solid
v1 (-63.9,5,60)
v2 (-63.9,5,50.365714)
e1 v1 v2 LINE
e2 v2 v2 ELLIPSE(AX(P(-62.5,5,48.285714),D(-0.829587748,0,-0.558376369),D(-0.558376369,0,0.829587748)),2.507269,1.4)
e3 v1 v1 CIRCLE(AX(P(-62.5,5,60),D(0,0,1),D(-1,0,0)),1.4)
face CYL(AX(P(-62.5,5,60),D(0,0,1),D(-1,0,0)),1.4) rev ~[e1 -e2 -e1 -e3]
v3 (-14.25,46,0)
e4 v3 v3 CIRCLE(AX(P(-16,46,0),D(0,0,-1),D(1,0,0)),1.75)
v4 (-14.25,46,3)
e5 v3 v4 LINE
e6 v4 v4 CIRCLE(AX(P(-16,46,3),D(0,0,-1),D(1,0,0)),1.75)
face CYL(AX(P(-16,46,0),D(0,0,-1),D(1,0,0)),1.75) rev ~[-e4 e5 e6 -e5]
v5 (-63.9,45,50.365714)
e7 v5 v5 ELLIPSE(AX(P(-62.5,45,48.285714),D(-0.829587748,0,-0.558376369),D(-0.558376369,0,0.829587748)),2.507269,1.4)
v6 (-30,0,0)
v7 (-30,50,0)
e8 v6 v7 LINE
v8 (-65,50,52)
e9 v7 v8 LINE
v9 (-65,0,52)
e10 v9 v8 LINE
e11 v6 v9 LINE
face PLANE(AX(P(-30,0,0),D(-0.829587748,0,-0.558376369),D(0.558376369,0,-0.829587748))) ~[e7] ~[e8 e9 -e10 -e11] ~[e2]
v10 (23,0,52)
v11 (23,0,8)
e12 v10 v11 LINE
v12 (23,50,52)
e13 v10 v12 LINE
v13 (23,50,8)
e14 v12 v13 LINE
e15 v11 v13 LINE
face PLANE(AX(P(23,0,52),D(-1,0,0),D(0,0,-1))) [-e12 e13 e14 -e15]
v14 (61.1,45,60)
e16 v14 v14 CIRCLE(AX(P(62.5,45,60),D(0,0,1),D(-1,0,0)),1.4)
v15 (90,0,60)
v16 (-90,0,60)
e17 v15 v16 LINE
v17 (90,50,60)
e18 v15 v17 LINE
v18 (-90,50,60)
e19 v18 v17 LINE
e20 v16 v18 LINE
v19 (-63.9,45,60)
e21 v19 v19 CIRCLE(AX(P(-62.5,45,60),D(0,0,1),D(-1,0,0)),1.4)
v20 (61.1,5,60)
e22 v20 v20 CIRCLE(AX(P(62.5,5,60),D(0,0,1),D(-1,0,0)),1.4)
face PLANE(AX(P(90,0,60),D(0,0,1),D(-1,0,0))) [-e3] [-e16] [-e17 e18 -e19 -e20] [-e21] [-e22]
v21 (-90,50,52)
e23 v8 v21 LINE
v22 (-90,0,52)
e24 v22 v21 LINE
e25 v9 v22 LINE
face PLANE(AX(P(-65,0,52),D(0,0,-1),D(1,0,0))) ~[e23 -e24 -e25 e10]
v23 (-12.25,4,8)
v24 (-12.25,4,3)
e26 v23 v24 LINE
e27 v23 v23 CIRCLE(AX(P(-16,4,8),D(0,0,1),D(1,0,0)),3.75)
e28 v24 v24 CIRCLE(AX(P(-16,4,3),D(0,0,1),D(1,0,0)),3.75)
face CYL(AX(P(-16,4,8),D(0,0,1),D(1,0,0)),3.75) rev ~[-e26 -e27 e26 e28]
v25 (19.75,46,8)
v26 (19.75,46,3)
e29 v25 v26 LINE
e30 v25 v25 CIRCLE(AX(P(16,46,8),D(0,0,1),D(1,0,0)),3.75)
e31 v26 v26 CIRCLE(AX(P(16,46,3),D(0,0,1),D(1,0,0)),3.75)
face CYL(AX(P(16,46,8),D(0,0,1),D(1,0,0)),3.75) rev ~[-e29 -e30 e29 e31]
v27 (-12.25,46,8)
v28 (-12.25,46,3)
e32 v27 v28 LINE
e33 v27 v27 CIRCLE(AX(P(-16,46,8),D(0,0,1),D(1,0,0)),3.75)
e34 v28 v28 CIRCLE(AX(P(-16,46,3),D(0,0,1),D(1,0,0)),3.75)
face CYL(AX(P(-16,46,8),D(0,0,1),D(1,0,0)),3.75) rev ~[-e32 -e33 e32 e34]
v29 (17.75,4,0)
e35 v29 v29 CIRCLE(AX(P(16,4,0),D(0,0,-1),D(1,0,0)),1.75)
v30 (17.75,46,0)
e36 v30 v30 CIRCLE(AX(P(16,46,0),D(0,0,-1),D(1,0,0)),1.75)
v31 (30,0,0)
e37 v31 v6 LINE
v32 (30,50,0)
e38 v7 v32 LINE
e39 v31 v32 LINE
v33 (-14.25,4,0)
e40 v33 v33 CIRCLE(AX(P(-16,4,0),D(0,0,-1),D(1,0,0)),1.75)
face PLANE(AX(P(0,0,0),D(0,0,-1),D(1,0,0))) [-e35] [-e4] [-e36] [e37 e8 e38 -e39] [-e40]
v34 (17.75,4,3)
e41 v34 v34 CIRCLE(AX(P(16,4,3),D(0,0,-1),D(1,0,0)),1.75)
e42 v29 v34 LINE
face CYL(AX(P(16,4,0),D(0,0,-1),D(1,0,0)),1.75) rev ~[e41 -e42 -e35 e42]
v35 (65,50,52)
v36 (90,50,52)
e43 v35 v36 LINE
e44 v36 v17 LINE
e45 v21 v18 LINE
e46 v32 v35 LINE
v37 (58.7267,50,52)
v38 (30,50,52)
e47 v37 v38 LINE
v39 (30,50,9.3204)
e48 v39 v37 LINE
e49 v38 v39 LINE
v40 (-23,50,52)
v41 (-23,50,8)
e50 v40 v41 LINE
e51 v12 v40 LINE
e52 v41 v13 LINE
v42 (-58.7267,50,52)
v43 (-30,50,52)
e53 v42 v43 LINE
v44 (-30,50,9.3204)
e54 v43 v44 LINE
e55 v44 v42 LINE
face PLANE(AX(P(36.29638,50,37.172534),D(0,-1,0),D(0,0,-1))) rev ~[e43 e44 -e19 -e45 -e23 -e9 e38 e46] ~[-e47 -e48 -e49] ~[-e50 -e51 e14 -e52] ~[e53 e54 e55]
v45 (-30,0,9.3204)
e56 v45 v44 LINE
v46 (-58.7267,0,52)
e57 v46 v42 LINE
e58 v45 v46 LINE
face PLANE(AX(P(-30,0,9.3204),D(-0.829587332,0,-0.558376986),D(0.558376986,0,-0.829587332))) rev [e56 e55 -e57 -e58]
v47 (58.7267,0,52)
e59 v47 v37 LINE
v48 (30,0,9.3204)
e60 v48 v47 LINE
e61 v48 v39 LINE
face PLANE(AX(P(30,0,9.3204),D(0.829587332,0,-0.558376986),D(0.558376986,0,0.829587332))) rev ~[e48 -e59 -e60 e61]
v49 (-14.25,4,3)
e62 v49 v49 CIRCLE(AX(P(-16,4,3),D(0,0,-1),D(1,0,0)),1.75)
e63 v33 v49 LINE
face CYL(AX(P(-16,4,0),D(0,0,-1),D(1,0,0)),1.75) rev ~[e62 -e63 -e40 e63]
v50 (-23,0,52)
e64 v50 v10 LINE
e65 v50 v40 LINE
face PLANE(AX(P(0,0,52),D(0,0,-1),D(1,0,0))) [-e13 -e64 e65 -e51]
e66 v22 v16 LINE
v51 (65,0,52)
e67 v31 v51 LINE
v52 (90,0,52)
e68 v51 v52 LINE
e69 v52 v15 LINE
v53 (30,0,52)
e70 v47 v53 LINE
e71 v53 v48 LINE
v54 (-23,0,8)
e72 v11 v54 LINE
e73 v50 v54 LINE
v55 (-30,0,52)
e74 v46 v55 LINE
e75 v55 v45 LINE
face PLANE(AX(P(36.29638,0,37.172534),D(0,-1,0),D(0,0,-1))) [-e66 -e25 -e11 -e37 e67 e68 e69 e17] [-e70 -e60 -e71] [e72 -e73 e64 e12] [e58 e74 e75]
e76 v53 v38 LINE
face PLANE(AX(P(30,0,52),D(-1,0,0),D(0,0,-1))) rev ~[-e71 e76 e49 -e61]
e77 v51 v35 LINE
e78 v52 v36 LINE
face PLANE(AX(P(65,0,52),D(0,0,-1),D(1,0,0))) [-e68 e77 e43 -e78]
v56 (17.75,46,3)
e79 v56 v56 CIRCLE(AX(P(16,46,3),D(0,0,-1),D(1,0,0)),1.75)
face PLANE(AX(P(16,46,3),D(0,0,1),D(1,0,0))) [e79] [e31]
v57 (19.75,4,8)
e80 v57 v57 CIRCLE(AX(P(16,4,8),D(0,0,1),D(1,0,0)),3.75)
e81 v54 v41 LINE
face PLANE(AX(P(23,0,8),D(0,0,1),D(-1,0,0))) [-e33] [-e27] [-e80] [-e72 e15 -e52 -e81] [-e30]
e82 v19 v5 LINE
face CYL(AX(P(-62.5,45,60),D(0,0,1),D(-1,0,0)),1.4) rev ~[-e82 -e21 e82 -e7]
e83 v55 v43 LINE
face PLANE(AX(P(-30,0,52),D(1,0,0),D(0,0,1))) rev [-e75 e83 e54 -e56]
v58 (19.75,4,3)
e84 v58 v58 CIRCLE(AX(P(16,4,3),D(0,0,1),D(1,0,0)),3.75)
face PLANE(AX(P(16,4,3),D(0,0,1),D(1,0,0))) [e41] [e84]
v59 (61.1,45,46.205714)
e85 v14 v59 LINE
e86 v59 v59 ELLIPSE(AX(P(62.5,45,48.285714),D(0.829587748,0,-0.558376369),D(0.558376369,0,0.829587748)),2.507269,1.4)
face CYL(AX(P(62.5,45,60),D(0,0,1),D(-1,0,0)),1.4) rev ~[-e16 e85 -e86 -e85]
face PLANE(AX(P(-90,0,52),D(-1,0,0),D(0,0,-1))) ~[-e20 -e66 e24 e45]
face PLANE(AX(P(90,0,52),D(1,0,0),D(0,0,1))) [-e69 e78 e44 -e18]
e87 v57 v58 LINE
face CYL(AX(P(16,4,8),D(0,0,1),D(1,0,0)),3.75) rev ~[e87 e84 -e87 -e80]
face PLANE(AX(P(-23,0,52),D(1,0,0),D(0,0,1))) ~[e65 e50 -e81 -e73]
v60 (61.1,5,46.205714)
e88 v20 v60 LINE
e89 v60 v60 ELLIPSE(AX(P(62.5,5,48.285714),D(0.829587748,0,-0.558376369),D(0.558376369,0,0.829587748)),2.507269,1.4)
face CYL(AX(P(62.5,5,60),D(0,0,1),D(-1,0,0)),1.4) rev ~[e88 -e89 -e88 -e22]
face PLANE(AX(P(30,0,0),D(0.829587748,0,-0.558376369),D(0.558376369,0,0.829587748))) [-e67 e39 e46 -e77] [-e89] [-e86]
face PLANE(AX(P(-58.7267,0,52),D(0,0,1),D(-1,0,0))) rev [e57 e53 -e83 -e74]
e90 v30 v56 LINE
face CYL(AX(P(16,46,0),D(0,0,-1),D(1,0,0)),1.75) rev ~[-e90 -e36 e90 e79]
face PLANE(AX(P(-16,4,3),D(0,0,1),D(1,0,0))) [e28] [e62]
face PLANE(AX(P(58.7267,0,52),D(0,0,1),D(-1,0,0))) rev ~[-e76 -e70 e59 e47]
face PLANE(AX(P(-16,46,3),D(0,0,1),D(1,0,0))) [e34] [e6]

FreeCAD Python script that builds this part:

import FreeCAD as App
import Part
import Sketcher
from FreeCAD import Vector
Q = App.Units.Quantity

doc = App.newDocument("Part")
body = doc.addObject("PartDesign::Body", "Body")

# Sketch on XZ plane
sketch1 = body.newObject("Sketcher::SketchObject", "Sketch")
sketch1.AttachmentSupport = (doc.getObject("XZ_Plane"), [""])
sketch1.MapMode = "FlatFace"
sketch1.addGeometry(Part.LineSegment(Vector(0, 0, 0), Vector(30, 0, 0)), False)
sketch1.addGeometry(Part.LineSegment(Vector(30, 0, 0), Vector(65, 52, 0)), False)
sketch1.addGeometry(Part.LineSegment(Vector(65, 52, 0), Vector(90, 52, 0)), False)
sketch1.addGeometry(Part.LineSegment(Vector(90, 52, 0), Vector(90, 60, 0)), False)
sketch1.addGeometry(Part.LineSegment(Vector(90, 60, 0), Vector(0, 60, 0)), False)
sketch1.addGeometry(Part.LineSegment(Vector(0, 60, 0), Vector(0, 52, 0)), False)
sketch1.addGeometry(Part.LineSegment(Vector(0, 52, 0), Vector(23, 52, 0)), False)
sketch1.addGeometry(Part.LineSegment(Vector(23, 52, 0), Vector(23, 8, 0)), False)
sketch1.addGeometry(Part.LineSegment(Vector(23, 8, 0), Vector(0, 8, 0)), False)
sketch1.addGeometry(Part.LineSegment(Vector(0, 8, 0), Vector(0, 0, 0)), False)
sketch1.addConstraint(Sketcher.Constraint("Coincident", 0, 2, 1, 1))
sketch1.addConstraint(Sketcher.Constraint("Coincident", 1, 2, 2, 1))
sketch1.addConstraint(Sketcher.Constraint("Coincident", 2, 2, 3, 1))
sketch1.addConstraint(Sketcher.Constraint("Coincident", 3, 2, 4, 1))
sketch1.addConstraint(Sketcher.Constraint("Coincident", 4, 2, 5, 1))
sketch1.addConstraint(Sketcher.Constraint("Coincident", 5, 2, 6, 1))
sketch1.addConstraint(Sketcher.Constraint("Coincident", 6, 2, 7, 1))
sketch1.addConstraint(Sketcher.Constraint("Coincident", 7, 2, 8, 1))
sketch1.addConstraint(Sketcher.Constraint("Coincident", 8, 2, 9, 1))
sketch1.addConstraint(Sketcher.Constraint("Coincident", 9, 2, 0, 1))
sketch1.addConstraint(Sketcher.Constraint("Horizontal", 0))
sketch1.addConstraint(Sketcher.Constraint("Horizontal", 2))
sketch1.addConstraint(Sketcher.Constraint("Vertical", 3))
sketch1.addConstraint(Sketcher.Constraint("Horizontal", 4))
sketch1.addConstraint(Sketcher.Constraint("Vertical", 5))
sketch1.addConstraint(Sketcher.Constraint("Horizontal", 6))
sketch1.addConstraint(Sketcher.Constraint("Vertical", 7))
sketch1.addConstraint(Sketcher.Constraint("Horizontal", 8))
sketch1.addConstraint(Sketcher.Constraint("Vertical", 9))
sketch1.addConstraint(Sketcher.Constraint("Coincident", 9, 2, -1, 1))
sketch1.addConstraint(Sketcher.Constraint("PointOnObject", 4, 2, -2))
sketch1.addConstraint(Sketcher.Constraint("Horizontal", 2, 2, 5, 2))
sketch1.addConstraint(Sketcher.Constraint("Equal", 5, 9))
sketch1.addConstraint(Sketcher.Constraint("DistanceX", 6, 1, 6, 2, Q("23 mm")))
sketch1.addConstraint(Sketcher.Constraint("DistanceX", 0, 1, 0, 2, Q("30 mm")))
sketch1.addConstraint(Sketcher.Constraint("DistanceX", 2, 1, 2, 2, Q("25 mm")))
sketch1.addConstraint(Sketcher.Constraint("DistanceX", 4, 2, 4, 1, Q("90 mm")))
sketch1.addConstraint(Sketcher.Constraint("DistanceY", 3, 1, 3, 2, Q("8 mm")))
sketch1.addConstraint(Sketcher.Constraint("DistanceY", 7, 2, 7, 1, Q("44 mm")))
pad1 = body.newObject("PartDesign::Pad", "Pad")
pad1.Profile = sketch1
pad1.Length = 50
pad1.Reversed = True
doc.recompute()

mirrored = body.newObject("PartDesign::Mirrored", "Mirrored")
mirrored.Originals = [pad1]
mirrored.MirrorPlane = (doc.getObject("YZ_Plane"), [""])
body.Tip = mirrored

# Sketch on XZ plane
sketch2 = body.newObject("Sketcher::SketchObject", "Sketch001")
sketch2.AttachmentSupport = (doc.getObject("XZ_Plane"), [""])
sketch2.MapMode = "FlatFace"
sketch2.addGeometry(Part.LineSegment(Vector(30, 52, 0), Vector(30, 9, 0)), False)
sketch2.addGeometry(Part.LineSegment(Vector(30, 9, 0), Vector(59, 52, 0)), False)
sketch2.addGeometry(Part.LineSegment(Vector(59, 52, 0), Vector(30, 52, 0)), False)
sketch2.addConstraint(Sketcher.Constraint("Coincident", 0, 2, 1, 1))
sketch2.addConstraint(Sketcher.Constraint("Coincident", 1, 2, 2, 1))
sketch2.addConstraint(Sketcher.Constraint("Coincident", 2, 2, 0, 1))
sketch2.addConstraint(Sketcher.Constraint("Vertical", 0))
sketch2.addConstraint(Sketcher.Constraint("Horizontal", 2))
sketch2.addConstraint(Sketcher.Constraint("DistanceX", -1, 1, 0, 2, Q("30 mm")))
sketch2.addConstraint(Sketcher.Constraint("DistanceY", -1, 1, 1, 2, Q("52 mm")))
sketch2.addConstraint(Sketcher.Constraint("DistanceX", 2, 2, 2, 1, Q("28.7267 mm")))
sketch2.addConstraint(Sketcher.Constraint("DistanceY", 0, 2, 0, 1, Q("42.6796 mm")))
pocket1 = body.newObject("PartDesign::Pocket", "Pocket")
pocket1.Profile = sketch2
pocket1.Type = "ThroughAll"

# Sketch on XY plane
sketch3 = body.newObject("Sketcher::SketchObject", "Sketch002")
sketch3.AttachmentSupport = (doc.getObject("XY_Plane"), [""])
sketch3.MapMode = "FlatFace"
sketch3.addGeometry(Part.Circle(Vector(-16, 4, 0), Vector(0, 0, 1), 1.8), False)
sketch3.addGeometry(Part.Circle(Vector(16, 4, 0), Vector(0, 0, 1), 1.8), False)
sketch3.addGeometry(Part.Circle(Vector(16, 46, 0), Vector(0, 0, 1), 1.8), False)
sketch3.addGeometry(Part.Circle(Vector(-16, 46, 0), Vector(0, 0, 1), 1.8), False)
sketch3.addConstraint(Sketcher.Constraint("Equal", 0, 1))
sketch3.addConstraint(Sketcher.Constraint("Equal", 1, 2))
sketch3.addConstraint(Sketcher.Constraint("Equal", 2, 3))
sketch3.addConstraint(Sketcher.Constraint("Symmetric", 0, 3, 1, 3, -2))
sketch3.addConstraint(Sketcher.Constraint("Symmetric", 2, 3, 3, 3, -2))
sketch3.addConstraint(Sketcher.Constraint("Vertical", 1, 3, 2, 3))
sketch3.addConstraint(Sketcher.Constraint("Diameter", 0, Q("3.5 mm")))
sketch3.addConstraint(Sketcher.Constraint("DistanceX", 0, 3, -1, 1, Q("16 mm")))
sketch3.addConstraint(Sketcher.Constraint("DistanceY", -1, 1, 0, 3, Q("4 mm")))
sketch3.addConstraint(Sketcher.Constraint("DistanceY", -1, 1, 2, 3, Q("46 mm")))
pocket2 = body.newObject("PartDesign::Pocket", "Pocket001")
pocket2.Profile = sketch3
pocket2.Type = "UpToFirst"
pocket2.Reversed = True

# Sketch on XY plane
sketch4 = body.newObject("Sketcher::SketchObject", "Sketch003")
sketch4.AttachmentSupport = (doc.getObject("XY_Plane"), [""])
sketch4.MapMode = "FlatFace"
sketch4.AttachmentOffset = App.Placement(Vector(0, 0, 8), App.Rotation())
sketch4.addGeometry(Part.Circle(Vector(-16, 4, 0), Vector(0, 0, 1), 3.8), False)
sketch4.addGeometry(Part.Circle(Vector(16, 4, 0), Vector(0, 0, 1), 3.8), False)
sketch4.addGeometry(Part.Circle(Vector(-16, 46, 0), Vector(0, 0, 1), 3.8), False)
sketch4.addGeometry(Part.Circle(Vector(16, 46, 0), Vector(0, 0, 1), 3.8), False)
sketch4.addConstraint(Sketcher.Constraint("Equal", 0, 1))
sketch4.addConstraint(Sketcher.Constraint("Equal", 1, 2))
sketch4.addConstraint(Sketcher.Constraint("Equal", 2, 3))
sketch4.addConstraint(Sketcher.Constraint("Symmetric", 0, 3, 1, 3, -2))
sketch4.addConstraint(Sketcher.Constraint("Symmetric", 2, 3, 3, 3, -2))
sketch4.addConstraint(Sketcher.Constraint("Vertical", 0, 3, 2, 3))
sketch4.addConstraint(Sketcher.Constraint("Diameter", 0, Q("7.5 mm")))
sketch4.addConstraint(Sketcher.Constraint("DistanceX", 0, 3, -1, 1, Q("16 mm")))
sketch4.addConstraint(Sketcher.Constraint("DistanceY", -1, 1, 0, 3, Q("4 mm")))
sketch4.addConstraint(Sketcher.Constraint("DistanceY", -1, 1, 2, 3, Q("46 mm")))
pocket3 = body.newObject("PartDesign::Pocket", "Pocket002")
pocket3.Profile = sketch4
pocket3.Length = 5

# Sketch on XY plane
sketch5 = body.newObject("Sketcher::SketchObject", "Sketch004")
sketch5.AttachmentSupport = (doc.getObject("XY_Plane"), [""])
sketch5.MapMode = "FlatFace"
sketch5.AttachmentOffset = App.Placement(Vector(0, 0, 60), App.Rotation())
sketch5.addGeometry(Part.Circle(Vector(62.5, 5, 0), Vector(0, 0, 1), 1.4), False)
sketch5.addGeometry(Part.Circle(Vector(62.5, 45, 0), Vector(0, 0, 1), 1.4), False)
sketch5.addGeometry(Part.Circle(Vector(-62.5, 45, 0), Vector(0, 0, 1), 1.4), False)
sketch5.addGeometry(Part.Circle(Vector(-62.5, 5, 0), Vector(0, 0, 1), 1.4), False)
sketch5.addConstraint(Sketcher.Constraint("Equal", 0, 1))
sketch5.addConstraint(Sketcher.Constraint("Equal", 1, 2))
sketch5.addConstraint(Sketcher.Constraint("Equal", 2, 3))
sketch5.addConstraint(Sketcher.Constraint("Symmetric", 1, 3, 2, 3, -2))
sketch5.addConstraint(Sketcher.Constraint("Symmetric", 0, 3, 3, 3, -2))
sketch5.addConstraint(Sketcher.Constraint("Vertical", 0, 3, 1, 3))
sketch5.addConstraint(Sketcher.Constraint("Diameter", 0, Q("2.8 mm")))
sketch5.addConstraint(Sketcher.Constraint("DistanceX", -1, 1, 0, 3, Q("62.5 mm")))
sketch5.addConstraint(Sketcher.Constraint("DistanceY", -1, 1, 0, 3, Q("5 mm")))
sketch5.addConstraint(Sketcher.Constraint("DistanceY", -1, 1, 1, 3, Q("45 mm")))
pocket4 = body.newObject("PartDesign::Pocket", "Pocket003")
pocket4.Profile = sketch5
pocket4.Type = "ThroughAll"
doc.recompute()

mirrored2 = body.newObject("PartDesign::Mirrored", "Mirrored001")
mirrored2.Originals = [pocket1]
mirrored2.MirrorPlane = (doc.getObject("YZ_Plane"), [""])
body.Tip = mirrored2

doc.recompute()
